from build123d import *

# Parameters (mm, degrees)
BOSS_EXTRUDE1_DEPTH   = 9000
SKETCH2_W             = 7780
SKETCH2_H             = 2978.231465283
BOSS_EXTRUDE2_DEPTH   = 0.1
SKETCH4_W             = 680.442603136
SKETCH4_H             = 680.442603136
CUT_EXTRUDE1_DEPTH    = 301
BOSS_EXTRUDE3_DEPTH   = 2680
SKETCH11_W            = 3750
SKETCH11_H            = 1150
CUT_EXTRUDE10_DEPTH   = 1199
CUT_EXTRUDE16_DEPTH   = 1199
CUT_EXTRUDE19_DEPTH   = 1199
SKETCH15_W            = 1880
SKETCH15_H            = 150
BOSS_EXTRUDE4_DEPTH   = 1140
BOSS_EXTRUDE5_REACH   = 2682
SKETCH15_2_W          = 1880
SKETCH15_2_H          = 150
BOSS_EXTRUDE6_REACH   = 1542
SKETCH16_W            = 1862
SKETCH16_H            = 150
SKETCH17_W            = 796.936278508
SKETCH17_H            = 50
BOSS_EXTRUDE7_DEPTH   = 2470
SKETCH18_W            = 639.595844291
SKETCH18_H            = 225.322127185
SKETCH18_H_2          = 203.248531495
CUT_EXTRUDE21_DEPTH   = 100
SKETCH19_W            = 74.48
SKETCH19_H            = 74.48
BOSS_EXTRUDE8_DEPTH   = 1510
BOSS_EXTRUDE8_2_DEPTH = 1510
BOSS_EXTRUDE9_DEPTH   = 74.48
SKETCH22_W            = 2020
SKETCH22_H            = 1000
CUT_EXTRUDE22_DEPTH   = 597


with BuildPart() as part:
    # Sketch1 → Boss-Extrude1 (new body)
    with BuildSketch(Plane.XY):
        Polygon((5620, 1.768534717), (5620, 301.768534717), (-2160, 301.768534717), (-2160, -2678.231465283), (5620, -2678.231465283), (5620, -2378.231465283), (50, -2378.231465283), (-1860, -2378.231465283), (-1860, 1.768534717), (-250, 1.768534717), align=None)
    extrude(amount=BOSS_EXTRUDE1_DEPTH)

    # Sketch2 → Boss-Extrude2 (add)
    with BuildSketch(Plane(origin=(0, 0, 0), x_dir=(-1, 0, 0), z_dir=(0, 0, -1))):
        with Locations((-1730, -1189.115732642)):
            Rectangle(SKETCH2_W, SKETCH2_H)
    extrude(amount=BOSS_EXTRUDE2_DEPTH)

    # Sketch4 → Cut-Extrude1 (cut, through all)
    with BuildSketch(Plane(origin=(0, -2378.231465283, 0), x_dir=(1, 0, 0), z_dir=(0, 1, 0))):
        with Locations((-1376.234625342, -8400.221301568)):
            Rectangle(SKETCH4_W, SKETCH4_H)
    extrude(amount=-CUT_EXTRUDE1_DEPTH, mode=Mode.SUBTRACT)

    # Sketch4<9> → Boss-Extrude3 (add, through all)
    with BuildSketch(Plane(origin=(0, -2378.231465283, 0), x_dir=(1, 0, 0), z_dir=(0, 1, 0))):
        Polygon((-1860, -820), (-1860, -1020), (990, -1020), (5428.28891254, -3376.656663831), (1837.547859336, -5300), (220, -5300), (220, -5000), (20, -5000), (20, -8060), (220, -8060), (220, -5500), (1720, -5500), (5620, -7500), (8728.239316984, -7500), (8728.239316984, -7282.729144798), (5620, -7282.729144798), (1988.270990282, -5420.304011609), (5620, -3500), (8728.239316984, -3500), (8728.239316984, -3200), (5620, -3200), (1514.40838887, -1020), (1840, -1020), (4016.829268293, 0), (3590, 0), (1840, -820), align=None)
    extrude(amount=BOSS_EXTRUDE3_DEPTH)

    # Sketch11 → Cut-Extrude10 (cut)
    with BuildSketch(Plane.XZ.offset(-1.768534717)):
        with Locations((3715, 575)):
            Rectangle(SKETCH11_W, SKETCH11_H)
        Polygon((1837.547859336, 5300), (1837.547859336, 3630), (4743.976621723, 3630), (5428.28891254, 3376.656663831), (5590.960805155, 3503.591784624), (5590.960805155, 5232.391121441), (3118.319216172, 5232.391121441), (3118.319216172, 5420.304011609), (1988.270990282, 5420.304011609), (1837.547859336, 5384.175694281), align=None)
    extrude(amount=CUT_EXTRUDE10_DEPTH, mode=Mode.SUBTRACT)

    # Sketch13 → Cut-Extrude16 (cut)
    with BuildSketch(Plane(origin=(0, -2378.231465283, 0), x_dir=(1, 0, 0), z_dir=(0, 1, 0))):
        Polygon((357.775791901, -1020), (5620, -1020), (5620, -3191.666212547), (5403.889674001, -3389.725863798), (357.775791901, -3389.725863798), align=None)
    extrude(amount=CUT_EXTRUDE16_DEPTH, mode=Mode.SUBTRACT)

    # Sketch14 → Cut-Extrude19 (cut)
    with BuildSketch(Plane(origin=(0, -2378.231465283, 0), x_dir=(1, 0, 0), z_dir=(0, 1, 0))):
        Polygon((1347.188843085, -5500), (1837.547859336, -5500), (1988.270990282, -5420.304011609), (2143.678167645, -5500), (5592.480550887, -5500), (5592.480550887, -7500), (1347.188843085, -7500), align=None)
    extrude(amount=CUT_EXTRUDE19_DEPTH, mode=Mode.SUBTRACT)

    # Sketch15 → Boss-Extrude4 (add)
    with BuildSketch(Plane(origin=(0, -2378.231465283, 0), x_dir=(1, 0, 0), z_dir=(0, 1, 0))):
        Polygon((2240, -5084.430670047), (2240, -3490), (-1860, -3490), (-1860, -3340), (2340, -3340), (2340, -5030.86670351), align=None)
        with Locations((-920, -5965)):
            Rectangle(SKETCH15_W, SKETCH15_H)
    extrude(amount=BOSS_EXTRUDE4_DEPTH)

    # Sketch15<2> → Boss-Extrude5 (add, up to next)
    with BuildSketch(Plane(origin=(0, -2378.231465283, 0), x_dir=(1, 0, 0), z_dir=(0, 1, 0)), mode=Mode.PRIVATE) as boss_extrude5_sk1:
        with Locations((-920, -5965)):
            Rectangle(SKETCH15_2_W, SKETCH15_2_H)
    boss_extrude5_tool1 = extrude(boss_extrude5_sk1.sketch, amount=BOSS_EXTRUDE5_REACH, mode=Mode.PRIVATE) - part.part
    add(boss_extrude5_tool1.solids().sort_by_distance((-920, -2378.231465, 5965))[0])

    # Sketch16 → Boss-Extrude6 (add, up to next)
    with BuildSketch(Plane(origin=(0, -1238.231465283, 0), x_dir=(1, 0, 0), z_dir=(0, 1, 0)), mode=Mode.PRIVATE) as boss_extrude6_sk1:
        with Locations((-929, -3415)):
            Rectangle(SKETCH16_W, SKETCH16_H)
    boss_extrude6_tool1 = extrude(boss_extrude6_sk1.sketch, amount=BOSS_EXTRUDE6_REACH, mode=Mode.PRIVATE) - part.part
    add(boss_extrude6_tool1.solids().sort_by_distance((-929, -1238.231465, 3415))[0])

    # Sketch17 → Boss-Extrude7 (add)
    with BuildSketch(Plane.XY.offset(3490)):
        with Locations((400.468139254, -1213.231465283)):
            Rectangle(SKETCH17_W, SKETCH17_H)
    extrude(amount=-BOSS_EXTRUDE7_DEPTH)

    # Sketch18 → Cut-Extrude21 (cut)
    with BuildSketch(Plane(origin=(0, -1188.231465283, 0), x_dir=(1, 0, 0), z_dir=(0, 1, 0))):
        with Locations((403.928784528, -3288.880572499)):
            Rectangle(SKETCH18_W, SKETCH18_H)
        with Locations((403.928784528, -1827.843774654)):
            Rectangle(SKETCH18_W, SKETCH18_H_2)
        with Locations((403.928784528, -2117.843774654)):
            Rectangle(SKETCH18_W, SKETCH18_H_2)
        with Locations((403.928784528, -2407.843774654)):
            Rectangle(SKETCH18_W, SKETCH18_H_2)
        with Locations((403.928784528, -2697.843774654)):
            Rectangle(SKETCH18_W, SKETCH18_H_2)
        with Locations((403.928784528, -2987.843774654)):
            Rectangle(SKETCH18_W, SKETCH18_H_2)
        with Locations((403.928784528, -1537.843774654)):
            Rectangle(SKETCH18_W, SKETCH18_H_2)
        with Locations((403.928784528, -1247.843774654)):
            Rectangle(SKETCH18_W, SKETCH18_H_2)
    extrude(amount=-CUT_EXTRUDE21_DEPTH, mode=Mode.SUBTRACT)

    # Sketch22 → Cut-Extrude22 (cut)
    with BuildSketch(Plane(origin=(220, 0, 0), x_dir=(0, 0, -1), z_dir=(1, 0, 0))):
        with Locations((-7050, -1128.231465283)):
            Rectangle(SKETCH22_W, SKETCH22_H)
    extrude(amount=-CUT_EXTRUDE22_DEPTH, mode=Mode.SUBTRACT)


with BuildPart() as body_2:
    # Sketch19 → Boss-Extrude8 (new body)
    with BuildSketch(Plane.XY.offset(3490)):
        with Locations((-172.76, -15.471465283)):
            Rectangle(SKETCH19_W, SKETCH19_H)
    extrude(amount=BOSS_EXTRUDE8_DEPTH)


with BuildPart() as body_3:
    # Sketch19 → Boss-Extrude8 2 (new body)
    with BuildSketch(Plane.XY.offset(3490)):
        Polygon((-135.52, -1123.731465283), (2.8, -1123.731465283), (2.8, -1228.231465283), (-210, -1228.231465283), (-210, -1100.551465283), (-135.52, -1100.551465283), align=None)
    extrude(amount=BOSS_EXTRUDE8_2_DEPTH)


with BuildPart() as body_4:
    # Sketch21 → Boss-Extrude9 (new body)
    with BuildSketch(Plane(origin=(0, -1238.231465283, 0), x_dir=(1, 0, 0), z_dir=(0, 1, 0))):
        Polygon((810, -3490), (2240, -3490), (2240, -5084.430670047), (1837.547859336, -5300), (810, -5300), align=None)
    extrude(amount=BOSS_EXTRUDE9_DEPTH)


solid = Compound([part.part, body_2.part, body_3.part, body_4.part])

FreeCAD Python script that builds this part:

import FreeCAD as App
import Part
import Sketcher
Q = App.Units.Quantity

doc = App.newDocument("Part")
body = doc.addObject("PartDesign::Body", "Body")

sketch1 = body.newObject("Sketcher::SketchObject", "Sketch")
sketch1.AttachmentSupport = (doc.getObject("XY_Plane"), [""])
sketch1.MapMode = "FlatFace"
sketch1.addGeometry([
    Part.LineSegment(App.Vector(5620, 1.768535, 0), App.Vector(5620, 301.768535, 0)),
    Part.LineSegment(App.Vector(5620, 301.768535, 0), App.Vector(-2160, 301.768535, 0)),
    Part.LineSegment(App.Vector(-2160, 301.768535, 0), App.Vector(-2160, -2678.231465, 0)),
    Part.LineSegment(App.Vector(-2160, -2678.231465, 0), App.Vector(5620, -2678.231465, 0)),
    Part.LineSegment(App.Vector(5620, -2678.231465, 0), App.Vector(5620, -2378.231465, 0)),
    Part.LineSegment(App.Vector(5620, -2378.231465, 0), App.Vector(-1860, -2378.231465, 0)),
    Part.LineSegment(App.Vector(-1860, -2378.231465, 0), App.Vector(-1860, 1.768535, 0)),
    Part.LineSegment(App.Vector(-1860, 1.768535, 0), App.Vector(5620, 1.768535, 0)),
], False)
sketch1.addConstraint([
    Sketcher.Constraint("Coincident", 0, 2, 1, 1),
    Sketcher.Constraint("Coincident", 1, 2, 2, 1),
    Sketcher.Constraint("Coincident", 2, 2, 3, 1),
    Sketcher.Constraint("Coincident", 3, 2, 4, 1),
    Sketcher.Constraint("Coincident", 4, 2, 5, 1),
    Sketcher.Constraint("Coincident", 5, 2, 6, 1),
    Sketcher.Constraint("Coincident", 6, 2, 7, 1),
    Sketcher.Constraint("Coincident", 7, 2, 0, 1),
    Sketcher.Constraint("Vertical", 0),
    Sketcher.Constraint("Horizontal", 1),
    Sketcher.Constraint("Vertical", 2),
    Sketcher.Constraint("Horizontal", 3),
    Sketcher.Constraint("Vertical", 4),
    Sketcher.Constraint("Horizontal", 5),
    Sketcher.Constraint("Vertical", 6),
    Sketcher.Constraint("Horizontal", 7),
    Sketcher.Constraint("Vertical", 0, 2, 3, 2),
    Sketcher.Constraint("Equal", 0, 4),
    Sketcher.Constraint("DistanceX", 1, 2, 1, 1, Q("7780 mm")),
    Sketcher.Constraint("DistanceX", 5, 2, 5, 1, Q("7480 mm")),
    Sketcher.Constraint("DistanceY", 0, 1, 0, 2, Q("300 mm")),
    Sketcher.Constraint("DistanceY", 2, 2, 2, 1, Q("2980 mm")),
    Sketcher.Constraint("DistanceX", -1, 1, 0, 2, Q("5620 mm")),
    Sketcher.Constraint("DistanceY", -1, 1, 0, 2, Q("301.768535 mm")),
])
pad1 = body.newObject("PartDesign::Pad", "Pad")
pad1.Profile = sketch1
pad1.Length = 9000

sketch2 = body.newObject("Sketcher::SketchObject", "Sketch001")
sketch2.AttachmentSupport = (doc.getObject("XY_Plane"), [""])
sketch2.MapMode = "FlatFace"
sketch2.addGeometry([
    Part.LineSegment(App.Vector(5620, 300, 0), App.Vector(5620, -2678.231465, 0)),
    Part.LineSegment(App.Vector(5620, -2678.231465, 0), App.Vector(-2160, -2678.231465, 0)),
    Part.LineSegment(App.Vector(-2160, -2678.231465, 0), App.Vector(-2160, 300, 0)),
    Part.LineSegment(App.Vector(-2160, 300, 0), App.Vector(5620, 300, 0)),
], False)
sketch2.addConstraint([
    Sketcher.Constraint("Coincident", 0, 2, 1, 1),
    Sketcher.Constraint("Coincident", 1, 2, 2, 1),
    Sketcher.Constraint("Coincident", 2, 2, 3, 1),
    Sketcher.Constraint("Coincident", 3, 2, 0, 1),
    Sketcher.Constraint("Vertical", 0),
    Sketcher.Constraint("Horizontal", 1),
    Sketcher.Constraint("Vertical", 2),
    Sketcher.Constraint("Horizontal", 3),
    Sketcher.Constraint("DistanceX", 1, 2, 1, 1, Q("7780 mm")),
    Sketcher.Constraint("DistanceX", -1, 1, 0, 2, Q("5620 mm")),
    Sketcher.Constraint("DistanceY", -1, 1, 2, 2, Q("300 mm")),
    Sketcher.Constraint("DistanceY", 0, 2, 0, 1, Q("2978.231465 mm")),
])
pad2 = body.newObject("PartDesign::Pad", "Pad001")
pad2.Profile = sketch2
pad2.Length = 0.1
pad2.Reversed = True

sketch3 = body.newObject("Sketcher::SketchObject", "Sketch002")
sketch3.AttachmentSupport = (doc.getObject("XZ_Plane"), [""])
sketch3.MapMode = "FlatFace"
sketch3.AttachmentOffset = App.Placement(App.Vector(0, 0, 2378.231465), App.Rotation())
sketch3.addGeometry([
    Part.LineSegment(App.Vector(-1716.455927, 8060, 0), App.Vector(-1716.455927, 8740.442603, 0)),
    Part.LineSegment(App.Vector(-1716.455927, 8740.442603, 0), App.Vector(-1036.013324, 8740.442603, 0)),
    Part.LineSegment(App.Vector(-1036.013324, 8740.442603, 0), App.Vector(-1036.013324, 8060, 0)),
    Part.LineSegment(App.Vector(-1036.013324, 8060, 0), App.Vector(-1716.455927, 8060, 0)),
], False)
sketch3.addConstraint([
    Sketcher.Constraint("Coincident", 0, 2, 1, 1),
    Sketcher.Constraint("Coincident", 1, 2, 2, 1),
    Sketcher.Constraint("Coincident", 2, 2, 3, 1),
    Sketcher.Constraint("Coincident", 3, 2, 0, 1),
    Sketcher.Constraint("Vertical", 0),
    Sketcher.Constraint("Horizontal", 1),
    Sketcher.Constraint("Vertical", 2),
    Sketcher.Constraint("Horizontal", 3),
    Sketcher.Constraint("Equal", 3, 0),
    Sketcher.Constraint("DistanceY", -1, 1, 2, 2, Q("8060 mm")),
    Sketcher.Constraint("DistanceX", 1, 1, 1, 2, Q("680.442603 mm")),
    Sketcher.Constraint("DistanceX", 0, 2, -1, 1, Q("1716.455927 mm")),
])
pocket1 = body.newObject("PartDesign::Pocket", "Pocket")
pocket1.Profile = sketch3
pocket1.Type = "ThroughAll"
pocket1.Reversed = True

sketch4 = body.newObject("Sketcher::SketchObject", "Sketch003")
sketch4.AttachmentSupport = (doc.getObject("XZ_Plane"), [""])
sketch4.MapMode = "FlatFace"
sketch4.AttachmentOffset = App.Placement(App.Vector(0, 0, 2378.231465), App.Rotation())
sketch4.addGeometry([
    Part.LineSegment(App.Vector(-1860, 820, 0), App.Vector(-1860, 1020, 0)),
    Part.LineSegment(App.Vector(-1860, 1020, 0), App.Vector(990, 1020, 0)),
    Part.LineSegment(App.Vector(990, 1020, 0), App.Vector(5428.288913, 3376.656664, 0)),
    Part.LineSegment(App.Vector(5428.288913, 3376.656664, 0), App.Vector(1837.547859, 5300, 0)),
    Part.LineSegment(App.Vector(1837.547859, 5300, 0), App.Vector(220, 5300, 0)),
    Part.LineSegment(App.Vector(220, 5300, 0), App.Vector(220, 5000, 0)),
    Part.LineSegment(App.Vector(220, 5000, 0), App.Vector(20, 5000, 0)),
    Part.LineSegment(App.Vector(20, 5000, 0), App.Vector(20, 8060, 0)),
    Part.LineSegment(App.Vector(20, 8060, 0), App.Vector(220, 8060, 0)),
    Part.LineSegment(App.Vector(220, 8060, 0), App.Vector(220, 5500, 0)),
    Part.LineSegment(App.Vector(220, 5500, 0), App.Vector(1720, 5500, 0)),
    Part.LineSegment(App.Vector(1720, 5500, 0), App.Vector(5620, 7500, 0)),
    Part.LineSegment(App.Vector(5620, 7500, 0), App.Vector(8728.239317, 7500, 0)),
    Part.LineSegment(App.Vector(8728.239317, 7500, 0), App.Vector(8728.239317, 7282.729145, 0)),
    Part.LineSegment(App.Vector(8728.239317, 7282.729145, 0), App.Vector(5620, 7282.729145, 0)),
    Part.LineSegment(App.Vector(5620, 7282.729145, 0), App.Vector(1988.27099, 5420.304012, 0)),
    Part.LineSegment(App.Vector(1988.27099, 5420.304012, 0), App.Vector(5620, 3500, 0)),
    Part.LineSegment(App.Vector(5620, 3500, 0), App.Vector(8728.239317, 3500, 0)),
    Part.LineSegment(App.Vector(8728.239317, 3500, 0), App.Vector(8728.239317, 3200, 0)),
    Part.LineSegment(App.Vector(8728.239317, 3200, 0), App.Vector(5620, 3200, 0)),
    Part.LineSegment(App.Vector(5620, 3200, 0), App.Vector(1514.408389, 1020, 0)),
    Part.LineSegment(App.Vector(1514.408389, 1020, 0), App.Vector(1840, 1020, 0)),
    Part.LineSegment(App.Vector(1840, 1020, 0), App.Vector(4016.829268, 0, 0)),
    Part.LineSegment(App.Vector(4016.829268, 0, 0), App.Vector(3590, 0, 0)),
    Part.LineSegment(App.Vector(3590, 0, 0), App.Vector(1840, 820, 0)),
    Part.LineSegment(App.Vector(1840, 820, 0), App.Vector(-1860, 820, 0)),
], False)
sketch4.addConstraint([
    Sketcher.Constraint("Coincident", 0, 2, 1, 1),
    Sketcher.Constraint("Coincident", 1, 2, 2, 1),
    Sketcher.Constraint("Coincident", 2, 2, 3, 1),
    Sketcher.Constraint("Coincident", 3, 2, 4, 1),
    Sketcher.Constraint("Coincident", 4, 2, 5, 1),
    Sketcher.Constraint("Coincident", 5, 2, 6, 1),
    Sketcher.Constraint("Coincident", 6, 2, 7, 1),
    Sketcher.Constraint("Coincident", 7, 2, 8, 1),
    Sketcher.Constraint("Coincident", 8, 2, 9, 1),
    Sketcher.Constraint("Coincident", 9, 2, 10, 1),
    Sketcher.Constraint("Coincident", 10, 2, 11, 1),
    Sketcher.Constraint("Coincident", 11, 2, 12, 1),
    Sketcher.Constraint("Coincident", 12, 2, 13, 1),
    Sketcher.Constraint("Coincident", 13, 2, 14, 1),
    Sketcher.Constraint("Coincident", 14, 2, 15, 1),
    Sketcher.Constraint("Coincident", 15, 2, 16, 1),
    Sketcher.Constraint("Coincident", 16, 2, 17, 1),
    Sketcher.Constraint("Coincident", 17, 2, 18, 1),
    Sketcher.Constraint("Coincident", 18, 2, 19, 1),
    Sketcher.Constraint("Coincident", 19, 2, 20, 1),
    Sketcher.Constraint("Coincident", 20, 2, 21, 1),
    Sketcher.Constraint("Coincident", 21, 2, 22, 1),
    Sketcher.Constraint("Coincident", 22, 2, 23, 1),
    Sketcher.Constraint("Coincident", 23, 2, 24, 1),
    Sketcher.Constraint("Coincident", 24, 2, 25, 1),
    Sketcher.Constraint("Coincident", 25, 2, 0, 1),
    Sketcher.Constraint("Vertical", 0),
    Sketcher.Constraint("Horizontal", 1),
    Sketcher.Constraint("Horizontal", 4),
    Sketcher.Constraint("Vertical", 5),
    Sketcher.Constraint("Horizontal", 6),
    Sketcher.Constraint("Vertical", 7),
    Sketcher.Constraint("Horizontal", 8),
    Sketcher.Constraint("Vertical", 9),
    Sketcher.Constraint("Horizontal", 10),
    Sketcher.Constraint("Horizontal", 12),
    Sketcher.Constraint("Vertical", 13),
    Sketcher.Constraint("Horizontal", 14),
    Sketcher.Constraint("Horizontal", 17),
    Sketcher.Constraint("Vertical", 18),
    Sketcher.Constraint("Horizontal", 19),
    Sketcher.Constraint("Horizontal", 21),
    Sketcher.Constraint("Horizontal", 23),
    Sketcher.Constraint("Horizontal", 25),
    Sketcher.Constraint("PointOnObject", 22, 2, -1),
    Sketcher.Constraint("Parallel", 11, 15),
    Sketcher.Constraint("Parallel", 2, 20),
    Sketcher.Constraint("Parallel", 22, 24),
    Sketcher.Constraint("Horizontal", 1, 2, 20, 2),
    Sketcher.Constraint("Vertical", 5, 2, 8, 2),
    Sketcher.Constraint("Vertical", 11, 2, 14, 2),
    Sketcher.Constraint("Vertical", 14, 2, 16, 2),
    Sketcher.Constraint("Vertical", 13, 2, 17, 2),
    Sketcher.Constraint("Vertical", 16, 2, 19, 2),
    Sketcher.Constraint("Vertical", 21, 2, 24, 2),
    Sketcher.Constraint("Equal", 8, 0),
    Sketcher.Constraint("Equal", 5, 18),
    Sketcher.Constraint("DistanceX", 1, 1, 1, 2, Q("2850 mm")),
    Sketcher.Constraint("DistanceX", 6, 2, 6, 1, Q("200 mm")),
    Sketcher.Constraint("DistanceX", 10, 1, 10, 2, Q("1500 mm")),
    Sketcher.Constraint("DistanceX", 25, 2, 25, 1, Q("3700 mm")),
    Sketcher.Constraint("DistanceY", 5, 2, 5, 1, Q("300 mm")),
    Sketcher.Constraint("DistanceY", 7, 1, 7, 2, Q("3060 mm")),
    Sketcher.Constraint("DistanceY", 9, 2, 9, 1, Q("2560 mm")),
    Sketcher.Constraint("DistanceX", 0, 2, -1, 1, Q("1860 mm")),
    Sketcher.Constraint("DistanceY", -1, 1, 0, 2, Q("1020 mm")),
    Sketcher.Constraint("DistanceY", -1, 1, 3, 2, Q("5300 mm")),
    Sketcher.Constraint("DistanceX", -1, 1, 4, 2, Q("220 mm")),
    Sketcher.Constraint("DistanceX", -1, 1, 11, 2, Q("5620 mm")),
    Sketcher.Constraint("DistanceY", -1, 1, 11, 2, Q("7500 mm")),
    Sketcher.Constraint("DistanceY", -1, 1, 16, 2, Q("3500 mm")),
    Sketcher.Constraint("DistanceX", -1, 1, 23, 2, Q("3590 mm")),
    Sketcher.Constraint("DistanceX", 4, 2, 4, 1, Q("1617.547859 mm")),
    Sketcher.Constraint("DistanceX", 21, 1, 21, 2, Q("325.591611 mm")),
    Sketcher.Constraint("Distance", 3, Q("4073.41023 mm")),
    Sketcher.Constraint("DistanceX", 12, 1, 12, 2, Q("3108.239317 mm")),
    Sketcher.Constraint("DistanceY", 13, 2, 13, 1, Q("217.270855 mm")),
    Sketcher.Constraint("DistanceX", -1, 1, 15, 2, Q("1988.27099 mm")),
])
pad3 = body.newObject("PartDesign::Pad", "Pad002")
pad3.Profile = sketch4
pad3.Type = "UpToLast"
pad3.Reversed = True

sketch5 = body.newObject("Sketcher::SketchObject", "Sketch004")
sketch5.AttachmentSupport = (doc.getObject("XZ_Plane"), [""])
sketch5.MapMode = "FlatFace"
sketch5.AttachmentOffset = App.Placement(App.Vector(0, 0, -1.768535), App.Rotation())
sketch5.addGeometry([
    Part.LineSegment(App.Vector(1840, 1150, 0), App.Vector(1840, 0, 0)),
    Part.LineSegment(App.Vector(1840, 0, 0), App.Vector(5590, 0, 0)),
    Part.LineSegment(App.Vector(5590, 0, 0), App.Vector(5590, 1150, 0)),
    Part.LineSegment(App.Vector(5590, 1150, 0), App.Vector(1840, 1150, 0)),
    Part.LineSegment(App.Vector(1837.547859, 3630, 0), App.Vector(4743.976622, 3630, 0)),
    Part.LineSegment(App.Vector(4743.976622, 3630, 0), App.Vector(5428.288913, 3376.656664, 0)),
    Part.LineSegment(App.Vector(5428.288913, 3376.656664, 0), App.Vector(5590.960805, 3503.591785, 0)),
    Part.LineSegment(App.Vector(5590.960805, 3503.591785, 0), App.Vector(5590.960805, 5232.391121, 0)),
    Part.LineSegment(App.Vector(5590.960805, 5232.391121, 0), App.Vector(3118.319216, 5232.391121, 0)),
    Part.LineSegment(App.Vector(3118.319216, 5232.391121, 0), App.Vector(3118.319216, 5420.304012, 0)),
    Part.LineSegment(App.Vector(3118.319216, 5420.304012, 0), App.Vector(1988.27099, 5420.304012, 0)),
    Part.LineSegment(App.Vector(1988.27099, 5420.304012, 0), App.Vector(1837.547859, 5384.175694, 0)),
    Part.LineSegment(App.Vector(1837.547859, 5384.175694, 0), App.Vector(1837.547859, 3630, 0)),
], False)
sketch5.addConstraint([
    Sketcher.Constraint("Coincident", 0, 2, 1, 1),
    Sketcher.Constraint("Coincident", 1, 2, 2, 1),
    Sketcher.Constraint("Coincident", 2, 2, 3, 1),
    Sketcher.Constraint("Coincident", 3, 2, 0, 1),
    Sketcher.Constraint("Coincident", 4, 2, 5, 1),
    Sketcher.Constraint("Coincident", 5, 2, 6, 1),
    Sketcher.Constraint("Coincident", 6, 2, 7, 1),
    Sketcher.Constraint("Coincident", 7, 2, 8, 1),
    Sketcher.Constraint("Coincident", 8, 2, 9, 1),
    Sketcher.Constraint("Coincident", 9, 2, 10, 1),
    Sketcher.Constraint("Coincident", 10, 2, 11, 1),
    Sketcher.Constraint("Coincident", 11, 2, 12, 1),
    Sketcher.Constraint("Coincident", 12, 2, 4, 1),
    Sketcher.Constraint("Vertical", 0),
    Sketcher.Constraint("Horizontal", 1),
    Sketcher.Constraint("Vertical", 2),
    Sketcher.Constraint("Horizontal", 3),
    Sketcher.Constraint("Horizontal", 4),
    Sketcher.Constraint("Vertical", 7),
    Sketcher.Constraint("Horizontal", 8),
    Sketcher.Constraint("Vertical", 9),
    Sketcher.Constraint("Horizontal", 10),
    Sketcher.Constraint("Vertical", 12),
    Sketcher.Constraint("PointOnObject", 0, 2, -1),
    Sketcher.Constraint("DistanceX", 1, 1, 1, 2, Q("3750 mm")),
    Sketcher.Constraint("DistanceY", 0, 2, 0, 1, Q("1150 mm")),
    Sketcher.Constraint("DistanceX", -1, 1, 0, 2, Q("1840 mm")),
    Sketcher.Constraint("DistanceY", -1, 1, 4, 2, Q("3630 mm")),
    Sketcher.Constraint("DistanceX", 8, 2, 8, 1, Q("2472.641589 mm")),
    Sketcher.Constraint("DistanceY", 9, 1, 9, 2, Q("187.91289 mm")),
    Sketcher.Constraint("DistanceX", 4, 1, 4, 2, Q("2906.428762 mm")),
    Sketcher.Constraint("DistanceX", 10, 2, 10, 1, Q("1130.048226 mm")),
    Sketcher.Constraint("DistanceY", 7, 1, 7, 2, Q("1728.799337 mm")),
    Sketcher.Constraint("DistanceY", 12, 2, 12, 1, Q("1754.175694 mm")),
    Sketcher.Constraint("DistanceX", -1, 1, 4, 2, Q("4743.976622 mm")),
    Sketcher.Constraint("DistanceY", -1, 1, 7, 2, Q("5232.391121 mm")),
    Sketcher.Constraint("DistanceX", -1, 1, 10, 2, Q("1988.27099 mm")),
    Sketcher.Constraint("DistanceX", 4, 2, 5, 2, Q("684.312291 mm")),
    Sketcher.Constraint("DistanceY", 5, 2, 6, 2, Q("126.935121 mm")),
])
pocket2 = body.newObject("PartDesign::Pocket", "Pocket001")
pocket2.Profile = sketch5
pocket2.Length = 1199
pocket2.Reversed = True

sketch6 = body.newObject("Sketcher::SketchObject", "Sketch005")
sketch6.AttachmentSupport = (doc.getObject("XZ_Plane"), [""])
sketch6.MapMode = "FlatFace"
sketch6.AttachmentOffset = App.Placement(App.Vector(0, 0, 2378.231465), App.Rotation())
sketch6.addGeometry([
    Part.LineSegment(App.Vector(5620, 1020, 0), App.Vector(357.775792, 1020, 0)),
    Part.LineSegment(App.Vector(357.775792, 1020, 0), App.Vector(357.775792, 3389.725864, 0)),
    Part.LineSegment(App.Vector(357.775792, 3389.725864, 0), App.Vector(5403.889674, 3389.725864, 0)),
    Part.LineSegment(App.Vector(5403.889674, 3389.725864, 0), App.Vector(5620, 3191.666213, 0)),
    Part.LineSegment(App.Vector(5620, 3191.666213, 0), App.Vector(5620, 1020, 0)),
], False)
sketch6.addConstraint([
    Sketcher.Constraint("Coincident", 0, 2, 1, 1),
    Sketcher.Constraint("Coincident", 1, 2, 2, 1),
    Sketcher.Constraint("Coincident", 2, 2, 3, 1),
    Sketcher.Constraint("Coincident", 3, 2, 4, 1),
    Sketcher.Constraint("Coincident", 4, 2, 0, 1),
    Sketcher.Constraint("Horizontal", 0),
    Sketcher.Constraint("Vertical", 1),
    Sketcher.Constraint("Horizontal", 2),
    Sketcher.Constraint("Vertical", 4),
    Sketcher.Constraint("DistanceY", -1, 1, 0, 2, Q("1020 mm")),
    Sketcher.Constraint("DistanceX", -1, 1, 3, 2, Q("5620 mm")),
    Sketcher.Constraint("DistanceX", 0, 2, 0, 1, Q("5262.224208 mm")),
    Sketcher.Constraint("DistanceX", 2, 1, 2, 2, Q("5046.113882 mm")),
    Sketcher.Constraint("DistanceY", 1, 1, 1, 2, Q("2369.725864 mm")),
    Sketcher.Constraint("DistanceY", 4, 2, 4, 1, Q("2171.666213 mm")),
])
pocket3 = body.newObject("PartDesign::Pocket", "Pocket002")
pocket3.Profile = sketch6
pocket3.Length = 1199

sketch7 = body.newObject("Sketcher::SketchObject", "Sketch006")
sketch7.AttachmentSupport = (doc.getObject("XZ_Plane"), [""])
sketch7.MapMode = "FlatFace"
sketch7.AttachmentOffset = App.Placement(App.Vector(0, 0, 2378.231465), App.Rotation())
sketch7.addGeometry([
    Part.LineSegment(App.Vector(1837.547859, 5500, 0), App.Vector(1347.188843, 5500, 0)),
    Part.LineSegment(App.Vector(1347.188843, 5500, 0), App.Vector(1347.188843, 7500, 0)),
    Part.LineSegment(App.Vector(1347.188843, 7500, 0), App.Vector(5592.480551, 7500, 0)),
    Part.LineSegment(App.Vector(5592.480551, 7500, 0), App.Vector(5592.480551, 5500, 0)),
    Part.LineSegment(App.Vector(5592.480551, 5500, 0), App.Vector(2143.678168, 5500, 0)),
    Part.LineSegment(App.Vector(2143.678168, 5500, 0), App.Vector(1988.27099, 5420.304012, 0)),
    Part.LineSegment(App.Vector(1988.27099, 5420.304012, 0), App.Vector(1837.547859, 5500, 0)),
], False)
sketch7.addConstraint([
    Sketcher.Constraint("Coincident", 0, 2, 1, 1),
    Sketcher.Constraint("Coincident", 1, 2, 2, 1),
    Sketcher.Constraint("Coincident", 2, 2, 3, 1),
    Sketcher.Constraint("Coincident", 3, 2, 4, 1),
    Sketcher.Constraint("Coincident", 4, 2, 5, 1),
    Sketcher.Constraint("Coincident", 5, 2, 6, 1),
    Sketcher.Constraint("Coincident", 6, 2, 0, 1),
    Sketcher.Constraint("Horizontal", 0),
    Sketcher.Constraint("Vertical", 1),
    Sketcher.Constraint("Horizontal", 2),
    Sketcher.Constraint("Vertical", 3),
    Sketcher.Constraint("Horizontal", 4),
    Sketcher.Constraint("Horizontal", 0, 2, 3, 2),
    Sketcher.Constraint("DistanceY", 1, 1, 1, 2, Q("2000 mm")),
    Sketcher.Constraint("DistanceY", -1, 1, 0, 2, Q("5500 mm")),
    Sketcher.Constraint("Distance", 6, Q("170.496078 mm")),
    Sketcher.Constraint("DistanceX", 0, 2, 0, 1, Q("490.359016 mm")),
    Sketcher.Constraint("DistanceX", 2, 1, 2, 2, Q("4245.291708 mm")),
    Sketcher.Constraint("DistanceX", 4, 2, 4, 1, Q("3448.802383 mm")),
    Sketcher.Constraint("DistanceX", -1, 1, 2, 2, Q("5592.480551 mm")),
    Sketcher.Constraint("DistanceX", -1, 1, 5, 2, Q("1988.27099 mm")),
])
pocket4 = body.newObject("PartDesign::Pocket", "Pocket003")
pocket4.Profile = sketch7
pocket4.Length = 1199

sketch8 = body.newObject("Sketcher::SketchObject", "Sketch007")
sketch8.AttachmentSupport = (doc.getObject("XZ_Plane"), [""])
sketch8.MapMode = "FlatFace"
sketch8.AttachmentOffset = App.Placement(App.Vector(0, 0, 2378.231465), App.Rotation())
sketch8.addGeometry([
    Part.LineSegment(App.Vector(2240, 3490, 0), App.Vector(2240, 5084.43067, 0)),
    Part.LineSegment(App.Vector(2240, 5084.43067, 0), App.Vector(2340, 5030.866704, 0)),
    Part.LineSegment(App.Vector(2340, 5030.866704, 0), App.Vector(2340, 3340, 0)),
    Part.LineSegment(App.Vector(2340, 3340, 0), App.Vector(-1860, 3340, 0)),
    Part.LineSegment(App.Vector(-1860, 3340, 0), App.Vector(-1860, 3490, 0)),
    Part.LineSegment(App.Vector(-1860, 3490, 0), App.Vector(2240, 3490, 0)),
    Part.LineSegment(App.Vector(-1860, 5890, 0), App.Vector(-1860, 6040, 0)),
    Part.LineSegment(App.Vector(-1860, 6040, 0), App.Vector(20, 6040, 0)),
    Part.LineSegment(App.Vector(20, 6040, 0), App.Vector(20, 5890, 0)),
    Part.LineSegment(App.Vector(20, 5890, 0), App.Vector(-1860, 5890, 0)),
], False)
sketch8.addConstraint([
    Sketcher.Constraint("Coincident", 0, 2, 1, 1),
    Sketcher.Constraint("Coincident", 1, 2, 2, 1),
    Sketcher.Constraint("Coincident", 2, 2, 3, 1),
    Sketcher.Constraint("Coincident", 3, 2, 4, 1),
    Sketcher.Constraint("Coincident", 4, 2, 5, 1),
    Sketcher.Constraint("Coincident", 5, 2, 0, 1),
    Sketcher.Constraint("Coincident", 6, 2, 7, 1),
    Sketcher.Constraint("Coincident", 7, 2, 8, 1),
    Sketcher.Constraint("Coincident", 8, 2, 9, 1),
    Sketcher.Constraint("Coincident", 9, 2, 6, 1),
    Sketcher.Constraint("Vertical", 0),
    Sketcher.Constraint("Vertical", 2),
    Sketcher.Constraint("Horizontal", 3),
    Sketcher.Constraint("Vertical", 4),
    Sketcher.Constraint("Horizontal", 5),
    Sketcher.Constraint("Vertical", 6),
    Sketcher.Constraint("Horizontal", 7),
    Sketcher.Constraint("Vertical", 8),
    Sketcher.Constraint("Horizontal", 9),
    Sketcher.Constraint("Vertical", 4, 2, 6, 2),
    Sketcher.Constraint("Equal", 4, 6),
    Sketcher.Constraint("DistanceX", 3, 2, 3, 1, Q("4200 mm")),
    Sketcher.Constraint("DistanceX", 5, 1, 5, 2, Q("4100 mm")),
    Sketcher.Constraint("DistanceX", 7, 1, 7, 2, Q("1880 mm")),
    Sketcher.Constraint("DistanceY", 4, 1, 4, 2, Q("150 mm")),
    Sketcher.Constraint("DistanceX", -1, 1, 0, 2, Q("2240 mm")),
    Sketcher.Constraint("DistanceY", -1, 1, 2, 2, Q("3340 mm")),
    Sketcher.Constraint("DistanceY", -1, 1, 6, 2, Q("6040 mm")),
    Sketcher.Constraint("DistanceY", 0, 1, 0, 2, Q("1594.43067 mm")),
    Sketcher.Constraint("Distance", 1, Q("113.442049 mm")),
])
pad4 = body.newObject("PartDesign::Pad", "Pad003")
pad4.Profile = sketch8
pad4.Length = 1140
pad4.Reversed = True

sketch9 = body.newObject("Sketcher::SketchObject", "Sketch008")
sketch9.AttachmentSupport = (doc.getObject("XZ_Plane"), [""])
sketch9.MapMode = "FlatFace"
sketch9.AttachmentOffset = App.Placement(App.Vector(0, 0, 2378.231465), App.Rotation())
sketch9.addGeometry([
    Part.LineSegment(App.Vector(-1860, 5890, 0), App.Vector(-1860, 6040, 0)),
    Part.LineSegment(App.Vector(-1860, 6040, 0), App.Vector(20, 6040, 0)),
    Part.LineSegment(App.Vector(20, 6040, 0), App.Vector(20, 5890, 0)),
    Part.LineSegment(App.Vector(20, 5890, 0), App.Vector(-1860, 5890, 0)),
], False)
sketch9.addConstraint([
    Sketcher.Constraint("Coincident", 0, 2, 1, 1),
    Sketcher.Constraint("Coincident", 1, 2, 2, 1),
    Sketcher.Constraint("Coincident", 2, 2, 3, 1),
    Sketcher.Constraint("Coincident", 3, 2, 0, 1),
    Sketcher.Constraint("Vertical", 0),
    Sketcher.Constraint("Horizontal", 1),
    Sketcher.Constraint("Vertical", 2),
    Sketcher.Constraint("Horizontal", 3),
    Sketcher.Constraint("DistanceX", 1, 1, 1, 2, Q("1880 mm")),
    Sketcher.Constraint("DistanceY", 0, 1, 0, 2, Q("150 mm")),
    Sketcher.Constraint("DistanceX", 0, 2, -1, 1, Q("1860 mm")),
    Sketcher.Constraint("DistanceY", -1, 1, 0, 2, Q("6040 mm")),
])
pad5 = body.newObject("PartDesign::Pad", "Pad004")
pad5.Profile = sketch9
pad5.Length = 2380
pad5.Reversed = True

sketch10 = body.newObject("Sketcher::SketchObject", "Sketch009")
sketch10.AttachmentSupport = (doc.getObject("XZ_Plane"), [""])
sketch10.MapMode = "FlatFace"
sketch10.AttachmentOffset = App.Placement(App.Vector(0, 0, 1238.231465), App.Rotation())
sketch10.addGeometry([
    Part.LineSegment(App.Vector(-1860, 3340, 0), App.Vector(-1860, 3490, 0)),
    Part.LineSegment(App.Vector(-1860, 3490, 0), App.Vector(2, 3490, 0)),
    Part.LineSegment(App.Vector(2, 3490, 0), App.Vector(2, 3340, 0)),
    Part.LineSegment(App.Vector(2, 3340, 0), App.Vector(-1860, 3340, 0)),
], False)
sketch10.addConstraint([
    Sketcher.Constraint("Coincident", 0, 2, 1, 1),
    Sketcher.Constraint("Coincident", 1, 2, 2, 1),
    Sketcher.Constraint("Coincident", 2, 2, 3, 1),
    Sketcher.Constraint("Coincident", 3, 2, 0, 1),
    Sketcher.Constraint("Vertical", 0),
    Sketcher.Constraint("Horizontal", 1),
    Sketcher.Constraint("Vertical", 2),
    Sketcher.Constraint("Horizontal", 3),
    Sketcher.Constraint("DistanceX", 1, 1, 1, 2, Q("1862 mm")),
    Sketcher.Constraint("DistanceY", 0, 1, 0, 2, Q("150 mm")),
    Sketcher.Constraint("DistanceX", 0, 2, -1, 1, Q("1860 mm")),
    Sketcher.Constraint("DistanceY", -1, 1, 0, 2, Q("3490 mm")),
])
pad6 = body.newObject("PartDesign::Pad", "Pad005")
pad6.Profile = sketch10
pad6.Type = "UpToFirst"
pad6.Reversed = True

sketch11 = body.newObject("Sketcher::SketchObject", "Sketch010")
sketch11.AttachmentSupport = (doc.getObject("XY_Plane"), [""])
sketch11.MapMode = "FlatFace"
sketch11.AttachmentOffset = App.Placement(App.Vector(0, 0, 3490), App.Rotation())
sketch11.addGeometry([
    Part.LineSegment(App.Vector(2, -1188.231465, 0), App.Vector(2, -1238.231465, 0)),
    Part.LineSegment(App.Vector(2, -1238.231465, 0), App.Vector(798.936279, -1238.231465, 0)),
    Part.LineSegment(App.Vector(798.936279, -1238.231465, 0), App.Vector(798.936279, -1188.231465, 0)),
    Part.LineSegment(App.Vector(798.936279, -1188.231465, 0), App.Vector(2, -1188.231465, 0)),
], False)
sketch11.addConstraint([
    Sketcher.Constraint("Coincident", 0, 2, 1, 1),
    Sketcher.Constraint("Coincident", 1, 2, 2, 1),
    Sketcher.Constraint("Coincident", 2, 2, 3, 1),
    Sketcher.Constraint("Coincident", 3, 2, 0, 1),
    Sketcher.Constraint("Vertical", 0),
    Sketcher.Constraint("Horizontal", 1),
    Sketcher.Constraint("Vertical", 2),
    Sketcher.Constraint("Horizontal", 3),
    Sketcher.Constraint("DistanceY", 0, 2, 0, 1, Q("50 mm")),
    Sketcher.Constraint("DistanceX", -1, 1, 0, 2, Q("2 mm")),
    Sketcher.Constraint("DistanceX", 1, 1, 1, 2, Q("796.936279 mm")),
    Sketcher.Constraint("DistanceY", 0, 2, -1, 1, Q("1238.231465 mm")),
])
pad7 = body.newObject("PartDesign::Pad", "Pad006")
pad7.Profile = sketch11
pad7.Length = 2470
pad7.Reversed = True

sketch12 = body.newObject("Sketcher::SketchObject", "Sketch011")
sketch12.AttachmentSupport = (doc.getObject("XZ_Plane"), [""])
sketch12.MapMode = "FlatFace"
sketch12.AttachmentOffset = App.Placement(App.Vector(0, 0, 1188.231465), App.Rotation())
sketch12.addGeometry([
    Part.LineSegment(App.Vector(84.130862, 3176.219509, 0), App.Vector(84.130862, 3401.541636, 0)),
    Part.LineSegment(App.Vector(84.130862, 3401.541636, 0), App.Vector(723.726707, 3401.541636, 0)),
    Part.LineSegment(App.Vector(723.726707, 3401.541636, 0), App.Vector(723.726707, 3176.219509, 0)),
    Part.LineSegment(App.Vector(723.726707, 3176.219509, 0), App.Vector(84.130862, 3176.219509, 0)),
    Part.LineSegment(App.Vector(84.130862, 1726.219509, 0), App.Vector(84.130862, 1929.46804, 0)),
    Part.LineSegment(App.Vector(84.130862, 1929.46804, 0), App.Vector(723.726707, 1929.46804, 0)),
    Part.LineSegment(App.Vector(723.726707, 1929.46804, 0), App.Vector(723.726707, 1726.219509, 0)),
    Part.LineSegment(App.Vector(723.726707, 1726.219509, 0), App.Vector(84.130862, 1726.219509, 0)),
    Part.LineSegment(App.Vector(84.130862, 2016.219509, 0), App.Vector(84.130862, 2219.46804, 0)),
    Part.LineSegment(App.Vector(84.130862, 2219.46804, 0), App.Vector(723.726707, 2219.46804, 0)),
    Part.LineSegment(App.Vector(723.726707, 2219.46804, 0), App.Vector(723.726707, 2016.219509, 0)),
    Part.LineSegment(App.Vector(723.726707, 2016.219509, 0), App.Vector(84.130862, 2016.219509, 0)),
    Part.LineSegment(App.Vector(84.130862, 2306.219509, 0), App.Vector(84.130862, 2509.46804, 0)),
    Part.LineSegment(App.Vector(84.130862, 2509.46804, 0), App.Vector(723.726707, 2509.46804, 0)),
    Part.LineSegment(App.Vector(723.726707, 2509.46804, 0), App.Vector(723.726707, 2306.219509, 0)),
    Part.LineSegment(App.Vector(723.726707, 2306.219509, 0), App.Vector(84.130862, 2306.219509, 0)),
    Part.LineSegment(App.Vector(84.130862, 2596.219509, 0), App.Vector(84.130862, 2799.46804, 0)),
    Part.LineSegment(App.Vector(84.130862, 2799.46804, 0), App.Vector(723.726707, 2799.46804, 0)),
    Part.LineSegment(App.Vector(723.726707, 2799.46804, 0), App.Vector(723.726707, 2596.219509, 0)),
    Part.LineSegment(App.Vector(723.726707, 2596.219509, 0), App.Vector(84.130862, 2596.219509, 0)),
    Part.LineSegment(App.Vector(84.130862, 2886.219509, 0), App.Vector(84.130862, 3089.46804, 0)),
    Part.LineSegment(App.Vector(84.130862, 3089.46804, 0), App.Vector(723.726707, 3089.46804, 0)),
    Part.LineSegment(App.Vector(723.726707, 3089.46804, 0), App.Vector(723.726707, 2886.219509, 0)),
    Part.LineSegment(App.Vector(723.726707, 2886.219509, 0), App.Vector(84.130862, 2886.219509, 0)),
    Part.LineSegment(App.Vector(84.130862, 1436.219509, 0), App.Vector(84.130862, 1639.46804, 0)),
    Part.LineSegment(App.Vector(84.130862, 1639.46804, 0), App.Vector(723.726707, 1639.46804, 0)),
    Part.LineSegment(App.Vector(723.726707, 1639.46804, 0), App.Vector(723.726707, 1436.219509, 0)),
    Part.LineSegment(App.Vector(723.726707, 1436.219509, 0), App.Vector(84.130862, 1436.219509, 0)),
    Part.LineSegment(App.Vector(84.130862, 1146.219509, 0), App.Vector(84.130862, 1349.46804, 0)),
    Part.LineSegment(App.Vector(84.130862, 1349.46804, 0), App.Vector(723.726707, 1349.46804, 0)),
    Part.LineSegment(App.Vector(723.726707, 1349.46804, 0), App.Vector(723.726707, 1146.219509, 0)),
    Part.LineSegment(App.Vector(723.726707, 1146.219509, 0), App.Vector(84.130862, 1146.219509, 0)),
], False)
sketch12.addConstraint([
    Sketcher.Constraint("Coincident", 0, 2, 1, 1),
    Sketcher.Constraint("Coincident", 1, 2, 2, 1),
    Sketcher.Constraint("Coincident", 2, 2, 3, 1),
    Sketcher.Constraint("Coincident", 3, 2, 0, 1),
    Sketcher.Constraint("Coincident", 4, 2, 5, 1),
    Sketcher.Constraint("Coincident", 5, 2, 6, 1),
    Sketcher.Constraint("Coincident", 6, 2, 7, 1),
    Sketcher.Constraint("Coincident", 7, 2, 4, 1),
    Sketcher.Constraint("Coincident", 8, 2, 9, 1),
    Sketcher.Constraint("Coincident", 9, 2, 10, 1),
    Sketcher.Constraint("Coincident", 10, 2, 11, 1),
    Sketcher.Constraint("Coincident", 11, 2, 8, 1),
    Sketcher.Constraint("Coincident", 12, 2, 13, 1),
    Sketcher.Constraint("Coincident", 13, 2, 14, 1),
    Sketcher.Constraint("Coincident", 14, 2, 15, 1),
    Sketcher.Constraint("Coincident", 15, 2, 12, 1),
    Sketcher.Constraint("Coincident", 16, 2, 17, 1),
    Sketcher.Constraint("Coincident", 17, 2, 18, 1),
    Sketcher.Constraint("Coincident", 18, 2, 19, 1),
    Sketcher.Constraint("Coincident", 19, 2, 16, 1),
    Sketcher.Constraint("Coincident", 20, 2, 21, 1),
    Sketcher.Constraint("Coincident", 21, 2, 22, 1),
    Sketcher.Constraint("Coincident", 22, 2, 23, 1),
    Sketcher.Constraint("Coincident", 23, 2, 20, 1),
    Sketcher.Constraint("Coincident", 24, 2, 25, 1),
    Sketcher.Constraint("Coincident", 25, 2, 26, 1),
    Sketcher.Constraint("Coincident", 26, 2, 27, 1),
    Sketcher.Constraint("Coincident", 27, 2, 24, 1),
    Sketcher.Constraint("Coincident", 28, 2, 29, 1),
    Sketcher.Constraint("Coincident", 29, 2, 30, 1),
    Sketcher.Constraint("Coincident", 30, 2, 31, 1),
    Sketcher.Constraint("Coincident", 31, 2, 28, 1),
    Sketcher.Constraint("Vertical", 0),
    Sketcher.Constraint("Horizontal", 1),
    Sketcher.Constraint("Vertical", 2),
    Sketcher.Constraint("Horizontal", 3),
    Sketcher.Constraint("Vertical", 4),
    Sketcher.Constraint("Horizontal", 5),
    Sketcher.Constraint("Vertical", 6),
    Sketcher.Constraint("Horizontal", 7),
    Sketcher.Constraint("Vertical", 8),
    Sketcher.Constraint("Horizontal", 9),
    Sketcher.Constraint("Vertical", 10),
    Sketcher.Constraint("Horizontal", 11),
    Sketcher.Constraint("Vertical", 12),
    Sketcher.Constraint("Horizontal", 13),
    Sketcher.Constraint("Vertical", 14),
    Sketcher.Constraint("Horizontal", 15),
    Sketcher.Constraint("Vertical", 16),
    Sketcher.Constraint("Horizontal", 17),
    Sketcher.Constraint("Vertical", 18),
    Sketcher.Constraint("Horizontal", 19),
    Sketcher.Constraint("Vertical", 20),
    Sketcher.Constraint("Horizontal", 21),
    Sketcher.Constraint("Vertical", 22),
    Sketcher.Constraint("Horizontal", 23),
    Sketcher.Constraint("Vertical", 24),
    Sketcher.Constraint("Horizontal", 25),
    Sketcher.Constraint("Vertical", 26),
    Sketcher.Constraint("Horizontal", 27),
    Sketcher.Constraint("Vertical", 28),
    Sketcher.Constraint("Horizontal", 29),
    Sketcher.Constraint("Vertical", 30),
    Sketcher.Constraint("Horizontal", 31),
    Sketcher.Constraint("Vertical", 3, 2, 4, 2),
    Sketcher.Constraint("Vertical", 2, 2, 5, 2),
    Sketcher.Constraint("Vertical", 7, 2, 8, 2),
    Sketcher.Constraint("Vertical", 6, 2, 9, 2),
    Sketcher.Constraint("Vertical", 11, 2, 12, 2),
    Sketcher.Constraint("Vertical", 10, 2, 13, 2),
    Sketcher.Constraint("Vertical", 15, 2, 16, 2),
    Sketcher.Constraint("Vertical", 14, 2, 17, 2),
    Sketcher.Constraint("Vertical", 19, 2, 20, 2),
    Sketcher.Constraint("Vertical", 18, 2, 21, 2),
    Sketcher.Constraint("Vertical", 23, 2, 24, 2),
    Sketcher.Constraint("Vertical", 22, 2, 25, 2),
    Sketcher.Constraint("Vertical", 27, 2, 28, 2),
    Sketcher.Constraint("Vertical", 26, 2, 29, 2),
    Sketcher.Constraint("Equal", 6, 8),
    Sketcher.Constraint("Equal", 10, 12),
    Sketcher.Constraint("Equal", 14, 16),
    Sketcher.Constraint("Equal", 18, 20),
    Sketcher.Constraint("Equal", 22, 24),
    Sketcher.Constraint("Equal", 26, 28),
    Sketcher.Constraint("DistanceY", 6, 2, 2, 2, Q("1450 mm")),
    Sketcher.Constraint("DistanceY", 4, 2, 8, 2, Q("290 mm")),
    Sketcher.Constraint("DistanceY", 8, 2, 12, 2, Q("290 mm")),
    Sketcher.Constraint("DistanceY", 12, 2, 16, 2, Q("290 mm")),
    Sketcher.Constraint("DistanceY", 16, 2, 20, 2, Q("290 mm")),
    Sketcher.Constraint("DistanceY", 24, 2, 4, 2, Q("290 mm")),
    Sketcher.Constraint("DistanceY", 28, 2, 24, 2, Q("290 mm")),
    Sketcher.Constraint("DistanceY", 4, 1, 4, 2, Q("203.248531 mm")),
    Sketcher.Constraint("DistanceX", 1, 1, 1, 2, Q("639.595844 mm")),
    Sketcher.Constraint("DistanceY", 0, 1, 0, 2, Q("225.322127 mm")),
    Sketcher.Constraint("DistanceY", -1, 1, 2, 2, Q("3176.219509 mm")),
    Sketcher.Constraint("DistanceX", -1, 1, 0, 2, Q("84.130862 mm")),
])
pocket5 = body.newObject("PartDesign::Pocket", "Pocket004")
pocket5.Profile = sketch12
pocket5.Length = 100
pocket5.Reversed = True

sketch13 = body.newObject("Sketcher::SketchObject", "Sketch012")
sketch13.AttachmentSupport = (doc.getObject("YZ_Plane"), [""])
sketch13.MapMode = "FlatFace"
sketch13.AttachmentOffset = App.Placement(App.Vector(0, 0, 220), App.Rotation())
sketch13.addGeometry([
    Part.LineSegment(App.Vector(-628.231465, 8060, 0), App.Vector(-1628.231465, 8060, 0)),
    Part.LineSegment(App.Vector(-1628.231465, 8060, 0), App.Vector(-1628.231465, 6040, 0)),
    Part.LineSegment(App.Vector(-1628.231465, 6040, 0), App.Vector(-628.231465, 6040, 0)),
    Part.LineSegment(App.Vector(-628.231465, 6040, 0), App.Vector(-628.231465, 8060, 0)),
], False)
sketch13.addConstraint([
    Sketcher.Constraint("Coincident", 0, 2, 1, 1),
    Sketcher.Constraint("Coincident", 1, 2, 2, 1),
    Sketcher.Constraint("Coincident", 2, 2, 3, 1),
    Sketcher.Constraint("Coincident", 3, 2, 0, 1),
    Sketcher.Constraint("Horizontal", 0),
    Sketcher.Constraint("Vertical", 1),
    Sketcher.Constraint("Horizontal", 2),
    Sketcher.Constraint("Vertical", 3),
    Sketcher.Constraint("DistanceX", 0, 2, 0, 1, Q("1000 mm")),
    Sketcher.Constraint("DistanceY", 1, 2, 1, 1, Q("2020 mm")),
    Sketcher.Constraint("DistanceY", -1, 1, 0, 2, Q("8060 mm")),
    Sketcher.Constraint("DistanceX", 0, 2, -1, 1, Q("1628.231465 mm")),
])
pocket6 = body.newObject("PartDesign::Pocket", "Pocket005")
pocket6.Profile = sketch13
pocket6.Length = 597
body2 = doc.addObject("PartDesign::Body", "Body001")

sketch14 = body2.newObject("Sketcher::SketchObject", "Sketch013")
sketch14.AttachmentSupport = (doc.getObject("XY_Plane001"), [""])
sketch14.MapMode = "FlatFace"
sketch14.AttachmentOffset = App.Placement(App.Vector(0, 0, 3490), App.Rotation())
sketch14.addGeometry([
    Part.LineSegment(App.Vector(-210, 21.768535, 0), App.Vector(-210, -52.711465, 0)),
    Part.LineSegment(App.Vector(-210, -52.711465, 0), App.Vector(-135.52, -52.711465, 0)),
    Part.LineSegment(App.Vector(-135.52, -52.711465, 0), App.Vector(-135.52, 21.768535, 0)),
    Part.LineSegment(App.Vector(-135.52, 21.768535, 0), App.Vector(-210, 21.768535, 0)),
], False)
sketch14.addConstraint([
    Sketcher.Constraint("Coincident", 0, 2, 1, 1),
    Sketcher.Constraint("Coincident", 1, 2, 2, 1),
    Sketcher.Constraint("Coincident", 2, 2, 3, 1),
    Sketcher.Constraint("Coincident", 3, 2, 0, 1),
    Sketcher.Constraint("Vertical", 0),
    Sketcher.Constraint("Horizontal", 1),
    Sketcher.Constraint("Vertical", 2),
    Sketcher.Constraint("Horizontal", 3),
    Sketcher.Constraint("Equal", 3, 0),
    Sketcher.Constraint("DistanceX", 0, 2, -1, 1, Q("210 mm")),
    Sketcher.Constraint("DistanceX", 1, 1, 1, 2, Q("74.48 mm")),
    Sketcher.Constraint("DistanceY", 0, 2, -1, 1, Q("52.711465 mm")),
])
pad8 = body2.newObject("PartDesign::Pad", "Pad007")
pad8.Profile = sketch14
pad8.Length = 1510
body3 = doc.addObject("PartDesign::Body", "Body002")

sketch15 = body3.newObject("Sketcher::SketchObject", "Sketch014")
sketch15.AttachmentSupport = (doc.getObject("XY_Plane002"), [""])
sketch15.MapMode = "FlatFace"
sketch15.AttachmentOffset = App.Placement(App.Vector(0, 0, 3490), App.Rotation())
sketch15.addGeometry([
    Part.LineSegment(App.Vector(2.8, -1123.731465, 0), App.Vector(-135.52, -1123.731465, 0)),
    Part.LineSegment(App.Vector(-135.52, -1123.731465, 0), App.Vector(-135.52, -1100.551465, 0)),
    Part.LineSegment(App.Vector(-135.52, -1100.551465, 0), App.Vector(-210, -1100.551465, 0)),
    Part.LineSegment(App.Vector(-210, -1100.551465, 0), App.Vector(-210, -1228.231465, 0)),
    Part.LineSegment(App.Vector(-210, -1228.231465, 0), App.Vector(2.8, -1228.231465, 0)),
    Part.LineSegment(App.Vector(2.8, -1228.231465, 0), App.Vector(2.8, -1123.731465, 0)),
], False)
sketch15.addConstraint([
    Sketcher.Constraint("Coincident", 0, 2, 1, 1),
    Sketcher.Constraint("Coincident", 1, 2, 2, 1),
    Sketcher.Constraint("Coincident", 2, 2, 3, 1),
    Sketcher.Constraint("Coincident", 3, 2, 4, 1),
    Sketcher.Constraint("Coincident", 4, 2, 5, 1),
    Sketcher.Constraint("Coincident", 5, 2, 0, 1),
    Sketcher.Constraint("Horizontal", 0),
    Sketcher.Constraint("Vertical", 1),
    Sketcher.Constraint("Horizontal", 2),
    Sketcher.Constraint("Vertical", 3),
    Sketcher.Constraint("Horizontal", 4),
    Sketcher.Constraint("Vertical", 5),
    Sketcher.Constraint("DistanceX", 4, 1, 4, 2, Q("212.8 mm")),
    Sketcher.Constraint("DistanceY", 5, 1, 5, 2, Q("104.5 mm")),
    Sketcher.Constraint("DistanceX", 2, 2, -1, 1, Q("210 mm")),
    Sketcher.Constraint("DistanceX", 0, 2, 0, 1, Q("138.32 mm")),
    Sketcher.Constraint("DistanceY", 1, 1, 1, 2, Q("23.18 mm")),
    Sketcher.Constraint("DistanceY", 0, 2, -1, 1, Q("1123.731465 mm")),
])
pad9 = body3.newObject("PartDesign::Pad", "Pad008")
pad9.Profile = sketch15
pad9.Length = 1510
body4 = doc.addObject("PartDesign::Body", "Body003")

sketch16 = body4.newObject("Sketcher::SketchObject", "Sketch015")
sketch16.AttachmentSupport = (doc.getObject("XZ_Plane003"), [""])
sketch16.MapMode = "FlatFace"
sketch16.AttachmentOffset = App.Placement(App.Vector(0, 0, 1238.231465), App.Rotation())
sketch16.addGeometry([
    Part.LineSegment(App.Vector(2240, 3490, 0), App.Vector(810, 3490, 0)),
    Part.LineSegment(App.Vector(810, 3490, 0), App.Vector(810, 5300, 0)),
    Part.LineSegment(App.Vector(810, 5300, 0), App.Vector(1837.547859, 5300, 0)),
    Part.LineSegment(App.Vector(1837.547859, 5300, 0), App.Vector(2240, 5084.43067, 0)),
    Part.LineSegment(App.Vector(2240, 5084.43067, 0), App.Vector(2240, 3490, 0)),
], False)
sketch16.addConstraint([
    Sketcher.Constraint("Coincident", 0, 2, 1, 1),
    Sketcher.Constraint("Coincident", 1, 2, 2, 1),
    Sketcher.Constraint("Coincident", 2, 2, 3, 1),
    Sketcher.Constraint("Coincident", 3, 2, 4, 1),
    Sketcher.Constraint("Coincident", 4, 2, 0, 1),
    Sketcher.Constraint("Horizontal", 0),
    Sketcher.Constraint("Vertical", 1),
    Sketcher.Constraint("Horizontal", 2),
    Sketcher.Constraint("Vertical", 4),
    Sketcher.Constraint("DistanceX", 0, 2, 0, 1, Q("1430 mm")),
    Sketcher.Constraint("DistanceY", 1, 1, 1, 2, Q("1810 mm")),
    Sketcher.Constraint("DistanceX", -1, 1, 0, 2, Q("810 mm")),
    Sketcher.Constraint("DistanceY", -1, 1, 0, 2, Q("3490 mm")),
    Sketcher.Constraint("DistanceX", 2, 1, 2, 2, Q("1027.547859 mm")),
    Sketcher.Constraint("DistanceY", 4, 2, 4, 1, Q("1594.43067 mm")),
])
pad10 = body4.newObject("PartDesign::Pad", "Pad009")
pad10.Profile = sketch16
pad10.Length = 74.48
pad10.Reversed = True

doc.recompute()
